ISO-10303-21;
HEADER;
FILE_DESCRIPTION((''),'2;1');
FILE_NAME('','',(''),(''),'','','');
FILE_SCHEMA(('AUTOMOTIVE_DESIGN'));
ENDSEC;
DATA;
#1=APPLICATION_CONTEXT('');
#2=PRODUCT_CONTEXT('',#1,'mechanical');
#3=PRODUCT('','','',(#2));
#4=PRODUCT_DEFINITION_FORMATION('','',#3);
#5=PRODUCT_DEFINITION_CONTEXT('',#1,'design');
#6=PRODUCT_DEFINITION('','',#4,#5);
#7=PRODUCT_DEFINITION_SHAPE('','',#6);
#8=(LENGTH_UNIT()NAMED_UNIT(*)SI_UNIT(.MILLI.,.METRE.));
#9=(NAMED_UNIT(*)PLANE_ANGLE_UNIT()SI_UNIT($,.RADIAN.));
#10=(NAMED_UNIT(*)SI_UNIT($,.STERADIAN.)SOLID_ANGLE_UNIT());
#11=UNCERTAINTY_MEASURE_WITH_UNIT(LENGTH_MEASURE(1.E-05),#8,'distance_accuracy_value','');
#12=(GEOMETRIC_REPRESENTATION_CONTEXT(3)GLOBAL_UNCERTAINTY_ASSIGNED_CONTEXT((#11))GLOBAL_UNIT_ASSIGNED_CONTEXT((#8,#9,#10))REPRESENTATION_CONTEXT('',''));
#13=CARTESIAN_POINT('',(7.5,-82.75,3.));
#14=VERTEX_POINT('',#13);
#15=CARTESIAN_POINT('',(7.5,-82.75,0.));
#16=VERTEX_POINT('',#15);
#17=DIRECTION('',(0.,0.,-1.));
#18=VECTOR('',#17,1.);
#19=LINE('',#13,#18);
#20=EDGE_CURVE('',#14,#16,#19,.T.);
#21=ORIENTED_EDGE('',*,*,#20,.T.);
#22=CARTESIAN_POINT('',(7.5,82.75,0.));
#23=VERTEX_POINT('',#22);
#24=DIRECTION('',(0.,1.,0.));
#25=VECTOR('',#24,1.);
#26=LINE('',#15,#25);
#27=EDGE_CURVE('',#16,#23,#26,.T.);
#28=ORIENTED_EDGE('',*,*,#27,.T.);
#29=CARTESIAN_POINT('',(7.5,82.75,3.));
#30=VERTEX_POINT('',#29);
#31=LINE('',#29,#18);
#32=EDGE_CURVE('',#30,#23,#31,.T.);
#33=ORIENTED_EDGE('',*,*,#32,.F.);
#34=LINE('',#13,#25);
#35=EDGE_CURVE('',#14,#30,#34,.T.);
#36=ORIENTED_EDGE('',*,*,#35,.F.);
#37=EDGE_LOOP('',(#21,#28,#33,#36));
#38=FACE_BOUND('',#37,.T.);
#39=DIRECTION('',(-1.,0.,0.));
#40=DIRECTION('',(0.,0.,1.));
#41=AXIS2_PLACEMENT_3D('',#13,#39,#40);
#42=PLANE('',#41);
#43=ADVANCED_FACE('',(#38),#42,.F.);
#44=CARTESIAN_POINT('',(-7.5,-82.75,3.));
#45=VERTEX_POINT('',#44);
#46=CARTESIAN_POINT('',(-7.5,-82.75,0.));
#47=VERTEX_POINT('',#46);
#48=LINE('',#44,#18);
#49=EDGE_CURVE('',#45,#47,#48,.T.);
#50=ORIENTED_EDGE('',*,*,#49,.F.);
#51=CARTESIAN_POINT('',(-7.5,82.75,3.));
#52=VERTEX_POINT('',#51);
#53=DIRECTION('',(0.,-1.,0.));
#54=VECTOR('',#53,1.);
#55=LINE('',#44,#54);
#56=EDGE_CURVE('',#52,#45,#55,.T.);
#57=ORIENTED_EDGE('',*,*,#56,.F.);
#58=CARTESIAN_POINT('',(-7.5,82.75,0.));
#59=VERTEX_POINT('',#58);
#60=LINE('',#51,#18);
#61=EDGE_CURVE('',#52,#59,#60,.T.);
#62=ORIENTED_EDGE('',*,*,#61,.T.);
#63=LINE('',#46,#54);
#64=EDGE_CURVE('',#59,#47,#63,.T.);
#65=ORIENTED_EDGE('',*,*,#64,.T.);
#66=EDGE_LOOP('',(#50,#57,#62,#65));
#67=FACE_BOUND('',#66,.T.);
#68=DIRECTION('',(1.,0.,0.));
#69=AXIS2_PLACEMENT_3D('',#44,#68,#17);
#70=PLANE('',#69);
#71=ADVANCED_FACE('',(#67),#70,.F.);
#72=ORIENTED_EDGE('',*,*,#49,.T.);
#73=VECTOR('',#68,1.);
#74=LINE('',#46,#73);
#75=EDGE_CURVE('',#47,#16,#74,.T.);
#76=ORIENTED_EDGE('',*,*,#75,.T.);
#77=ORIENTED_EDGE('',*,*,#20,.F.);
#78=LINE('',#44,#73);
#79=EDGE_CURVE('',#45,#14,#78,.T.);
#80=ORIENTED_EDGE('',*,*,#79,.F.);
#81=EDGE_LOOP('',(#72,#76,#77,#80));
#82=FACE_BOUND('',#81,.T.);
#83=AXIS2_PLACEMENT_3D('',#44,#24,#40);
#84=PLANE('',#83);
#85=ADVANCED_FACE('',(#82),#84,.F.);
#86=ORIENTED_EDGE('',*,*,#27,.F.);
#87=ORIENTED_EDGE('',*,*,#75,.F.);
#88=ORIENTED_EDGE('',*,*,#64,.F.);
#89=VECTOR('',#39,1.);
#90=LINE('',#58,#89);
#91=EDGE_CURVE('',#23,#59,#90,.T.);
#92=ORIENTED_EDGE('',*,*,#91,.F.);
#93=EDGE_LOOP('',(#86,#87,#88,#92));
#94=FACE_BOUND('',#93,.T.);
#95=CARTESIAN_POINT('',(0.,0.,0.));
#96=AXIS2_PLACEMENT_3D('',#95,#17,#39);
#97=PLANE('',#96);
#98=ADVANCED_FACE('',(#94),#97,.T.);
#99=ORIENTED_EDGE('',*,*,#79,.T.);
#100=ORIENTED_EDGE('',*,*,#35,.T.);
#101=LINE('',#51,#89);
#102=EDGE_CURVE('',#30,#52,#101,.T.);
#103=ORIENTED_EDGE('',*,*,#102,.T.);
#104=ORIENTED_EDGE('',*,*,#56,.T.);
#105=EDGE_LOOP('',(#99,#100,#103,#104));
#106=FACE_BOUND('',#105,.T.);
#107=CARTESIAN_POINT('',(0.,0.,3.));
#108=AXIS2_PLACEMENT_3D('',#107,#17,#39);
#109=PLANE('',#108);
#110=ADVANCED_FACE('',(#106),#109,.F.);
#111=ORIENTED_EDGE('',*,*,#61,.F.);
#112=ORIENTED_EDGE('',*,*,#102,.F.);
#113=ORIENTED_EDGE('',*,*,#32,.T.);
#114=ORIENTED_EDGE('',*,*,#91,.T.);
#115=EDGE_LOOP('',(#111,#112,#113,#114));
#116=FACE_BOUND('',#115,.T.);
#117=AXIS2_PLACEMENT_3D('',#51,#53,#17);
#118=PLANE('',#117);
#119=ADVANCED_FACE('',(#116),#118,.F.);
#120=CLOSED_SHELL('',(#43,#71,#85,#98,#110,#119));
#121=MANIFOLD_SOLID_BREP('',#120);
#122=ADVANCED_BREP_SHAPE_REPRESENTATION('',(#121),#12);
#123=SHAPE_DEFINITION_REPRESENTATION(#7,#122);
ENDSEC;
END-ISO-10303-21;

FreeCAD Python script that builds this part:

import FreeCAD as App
import Part
import Sketcher
from FreeCAD import Vector
Q = App.Units.Quantity

doc = App.newDocument("Part")
body = doc.addObject("PartDesign::Body", "Body")

# Sketch on XY plane
sketch1 = body.newObject("Sketcher::SketchObject", "Sketch")
sketch1.AttachmentSupport = (doc.getObject("XY_Plane"), [""])
sketch1.MapMode = "FlatFace"
sketch1.addGeometry(Part.LineSegment(Vector(-8, 83, 0), Vector(-8, -83, 0)), False)
sketch1.addGeometry(Part.LineSegment(Vector(-8, -83, 0), Vector(8, -83, 0)), False)
sketch1.addGeometry(Part.LineSegment(Vector(8, -83, 0), Vector(8, 83, 0)), False)
sketch1.addGeometry(Part.LineSegment(Vector(8, 83, 0), Vector(-8, 83, 0)), False)
sketch1.addConstraint(Sketcher.Constraint("Coincident", 0, 2, 1, 1))
sketch1.addConstraint(Sketcher.Constraint("Coincident", 1, 2, 2, 1))
sketch1.addConstraint(Sketcher.Constraint("Coincident", 2, 2, 3, 1))
sketch1.addConstraint(Sketcher.Constraint("Coincident", 3, 2, 0, 1))
sketch1.addConstraint(Sketcher.Constraint("Vertical", 0))
sketch1.addConstraint(Sketcher.Constraint("Horizontal", 1))
sketch1.addConstraint(Sketcher.Constraint("Vertical", 2))
sketch1.addConstraint(Sketcher.Constraint("Horizontal", 3))
sketch1.addConstraint(Sketcher.Constraint("Symmetric", 0, 2, 2, 2, -1, 1))
sketch1.addConstraint(Sketcher.Constraint("DistanceX", 1, 1, 1, 2, Q("15 mm")))
sketch1.addConstraint(Sketcher.Constraint("DistanceY", 0, 2, 0, 1, Q("165.5 mm")))
pad1 = body.newObject("PartDesign::Pad", "Pad")
pad1.Profile = sketch1
pad1.Length = 3

doc.recompute()
